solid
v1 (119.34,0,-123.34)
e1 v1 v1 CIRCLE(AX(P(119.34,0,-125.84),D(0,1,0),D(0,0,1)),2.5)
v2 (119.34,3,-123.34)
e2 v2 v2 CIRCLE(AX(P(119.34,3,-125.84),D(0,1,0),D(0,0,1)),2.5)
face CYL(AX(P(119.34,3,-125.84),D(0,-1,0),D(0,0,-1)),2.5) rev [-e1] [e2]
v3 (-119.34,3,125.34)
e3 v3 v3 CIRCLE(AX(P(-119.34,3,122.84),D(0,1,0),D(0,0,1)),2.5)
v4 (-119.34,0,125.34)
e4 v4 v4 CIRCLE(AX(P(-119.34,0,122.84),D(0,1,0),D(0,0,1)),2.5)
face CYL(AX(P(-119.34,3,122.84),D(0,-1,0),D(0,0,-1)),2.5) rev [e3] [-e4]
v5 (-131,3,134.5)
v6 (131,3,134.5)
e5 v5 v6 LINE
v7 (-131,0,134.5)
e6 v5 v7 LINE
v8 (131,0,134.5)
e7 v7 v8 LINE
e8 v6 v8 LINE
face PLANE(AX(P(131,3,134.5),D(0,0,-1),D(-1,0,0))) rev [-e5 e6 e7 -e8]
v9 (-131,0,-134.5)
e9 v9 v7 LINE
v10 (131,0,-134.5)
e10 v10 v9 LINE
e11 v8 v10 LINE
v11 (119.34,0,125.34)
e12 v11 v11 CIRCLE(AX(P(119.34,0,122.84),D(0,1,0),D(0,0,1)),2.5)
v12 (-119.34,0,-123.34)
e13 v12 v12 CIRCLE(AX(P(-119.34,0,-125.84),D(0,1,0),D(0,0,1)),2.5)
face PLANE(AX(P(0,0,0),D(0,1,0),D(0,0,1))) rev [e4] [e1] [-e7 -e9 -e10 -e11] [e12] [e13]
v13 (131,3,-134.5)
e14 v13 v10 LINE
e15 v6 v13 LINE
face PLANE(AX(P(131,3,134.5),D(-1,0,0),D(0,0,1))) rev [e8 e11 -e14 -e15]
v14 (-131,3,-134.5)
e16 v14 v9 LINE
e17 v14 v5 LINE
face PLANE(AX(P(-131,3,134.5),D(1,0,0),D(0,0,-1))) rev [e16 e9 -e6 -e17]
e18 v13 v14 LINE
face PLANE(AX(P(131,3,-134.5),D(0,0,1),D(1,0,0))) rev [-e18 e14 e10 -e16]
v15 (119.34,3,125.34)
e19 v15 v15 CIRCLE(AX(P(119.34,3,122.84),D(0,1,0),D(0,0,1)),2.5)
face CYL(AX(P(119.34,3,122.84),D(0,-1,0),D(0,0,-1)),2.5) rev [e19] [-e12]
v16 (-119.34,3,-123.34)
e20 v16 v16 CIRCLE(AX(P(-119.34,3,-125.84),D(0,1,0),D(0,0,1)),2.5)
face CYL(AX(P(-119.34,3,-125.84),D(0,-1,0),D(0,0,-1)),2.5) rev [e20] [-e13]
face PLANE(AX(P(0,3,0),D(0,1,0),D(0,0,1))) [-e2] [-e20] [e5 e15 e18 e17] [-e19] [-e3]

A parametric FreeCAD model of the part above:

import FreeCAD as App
import Part
import Sketcher
from FreeCAD import Vector

doc = App.newDocument("Part")
params = doc.addObject("Spreadsheet::Sheet", "Params")
for row, (alias, value) in enumerate([
    ("sketch1_diameter", "5 mm"),
    ("sketch1_width", "262 mm"),
    ("sketch1_height", "269 mm"),
    ("pad1_length", "3 mm"),
], start=1):
    params.set(f"A{row}", alias)
    params.set(f"B{row}", "=" + value)
    params.setAlias(f"B{row}", alias)

body = doc.addObject("PartDesign::Body", "Body")

# Sketch on XZ plane
sketch1 = doc.addObject("Sketcher::SketchObject", "Sketch")
body.addObject(sketch1)
sketch1.AttachmentSupport = (doc.XZ_Plane, [""])
sketch1.MapMode = "FlatFace"
sketch1.addGeometry([
    Part.LineSegment(Vector(-131, -134.5, 0), Vector(-131, 134.5, 0)),  # 0
    Part.LineSegment(Vector(-131, 134.5, 0), Vector(131, 134.5, 0)),  # 1
    Part.LineSegment(Vector(131, 134.5, 0), Vector(131, -134.5, 0)),  # 2
    Part.LineSegment(Vector(131, -134.5, 0), Vector(-131, -134.5, 0)),  # 3
    Part.Circle(Vector(-119.34, 122.84, 0), Vector(0, 0, 1), 2.5),  # 4
    Part.Circle(Vector(119.34, 122.84, 0), Vector(0, 0, 1), 2.5),  # 5
    Part.Circle(Vector(-119.34, -125.84, 0), Vector(0, 0, 1), 2.5),  # 6
    Part.Circle(Vector(119.34, -125.84, 0), Vector(0, 0, 1), 2.5),  # 7
], False)
sketch1.addConstraint([
    Sketcher.Constraint("Coincident", 0, 2, 1, 1),
    Sketcher.Constraint("Coincident", 1, 2, 2, 1),
    Sketcher.Constraint("Coincident", 2, 2, 3, 1),
    Sketcher.Constraint("Coincident", 3, 2, 0, 1),
    Sketcher.Constraint("Vertical", 0),
    Sketcher.Constraint("Horizontal", 1),
    Sketcher.Constraint("Vertical", 2),
    Sketcher.Constraint("Horizontal", 3),
    Sketcher.Constraint("Equal", 4, 5),
    Sketcher.Constraint("Equal", 5, 6),
    Sketcher.Constraint("Equal", 6, 7),
    Sketcher.Constraint("Symmetric", 0, 2, 2, 2, -1, 1),
    Sketcher.Constraint("Symmetric", 4, 3, 5, 3, -2),
    Sketcher.Constraint("Symmetric", 6, 3, 7, 3, -2),
    Sketcher.Constraint("Vertical", 4, 3, 6, 3),
    Sketcher.Constraint("Diameter", 4, 5.0),
    Sketcher.Constraint("DistanceX", 1, 1, 1, 2, 262.0),
    Sketcher.Constraint("DistanceY", 0, 1, 0, 2, 269.0),
    Sketcher.Constraint("DistanceX", 4, 3, -1, 1, 119.34),
    Sketcher.Constraint("DistanceY", -1, 1, 4, 3, 122.84),
    Sketcher.Constraint("DistanceY", 6, 3, -1, 1, 125.84),
])
sketch1.setExpression("Constraints[15]", "Params.sketch1_diameter")
sketch1.setExpression("Constraints[16]", "Params.sketch1_width")
sketch1.setExpression("Constraints[17]", "Params.sketch1_height")
pad1 = doc.addObject("PartDesign::Pad", "Pad")
body.addObject(pad1)
pad1.Profile = sketch1
pad1.setExpression("Length", "Params.pad1_length")
pad1.Reversed = True

doc.recompute()
